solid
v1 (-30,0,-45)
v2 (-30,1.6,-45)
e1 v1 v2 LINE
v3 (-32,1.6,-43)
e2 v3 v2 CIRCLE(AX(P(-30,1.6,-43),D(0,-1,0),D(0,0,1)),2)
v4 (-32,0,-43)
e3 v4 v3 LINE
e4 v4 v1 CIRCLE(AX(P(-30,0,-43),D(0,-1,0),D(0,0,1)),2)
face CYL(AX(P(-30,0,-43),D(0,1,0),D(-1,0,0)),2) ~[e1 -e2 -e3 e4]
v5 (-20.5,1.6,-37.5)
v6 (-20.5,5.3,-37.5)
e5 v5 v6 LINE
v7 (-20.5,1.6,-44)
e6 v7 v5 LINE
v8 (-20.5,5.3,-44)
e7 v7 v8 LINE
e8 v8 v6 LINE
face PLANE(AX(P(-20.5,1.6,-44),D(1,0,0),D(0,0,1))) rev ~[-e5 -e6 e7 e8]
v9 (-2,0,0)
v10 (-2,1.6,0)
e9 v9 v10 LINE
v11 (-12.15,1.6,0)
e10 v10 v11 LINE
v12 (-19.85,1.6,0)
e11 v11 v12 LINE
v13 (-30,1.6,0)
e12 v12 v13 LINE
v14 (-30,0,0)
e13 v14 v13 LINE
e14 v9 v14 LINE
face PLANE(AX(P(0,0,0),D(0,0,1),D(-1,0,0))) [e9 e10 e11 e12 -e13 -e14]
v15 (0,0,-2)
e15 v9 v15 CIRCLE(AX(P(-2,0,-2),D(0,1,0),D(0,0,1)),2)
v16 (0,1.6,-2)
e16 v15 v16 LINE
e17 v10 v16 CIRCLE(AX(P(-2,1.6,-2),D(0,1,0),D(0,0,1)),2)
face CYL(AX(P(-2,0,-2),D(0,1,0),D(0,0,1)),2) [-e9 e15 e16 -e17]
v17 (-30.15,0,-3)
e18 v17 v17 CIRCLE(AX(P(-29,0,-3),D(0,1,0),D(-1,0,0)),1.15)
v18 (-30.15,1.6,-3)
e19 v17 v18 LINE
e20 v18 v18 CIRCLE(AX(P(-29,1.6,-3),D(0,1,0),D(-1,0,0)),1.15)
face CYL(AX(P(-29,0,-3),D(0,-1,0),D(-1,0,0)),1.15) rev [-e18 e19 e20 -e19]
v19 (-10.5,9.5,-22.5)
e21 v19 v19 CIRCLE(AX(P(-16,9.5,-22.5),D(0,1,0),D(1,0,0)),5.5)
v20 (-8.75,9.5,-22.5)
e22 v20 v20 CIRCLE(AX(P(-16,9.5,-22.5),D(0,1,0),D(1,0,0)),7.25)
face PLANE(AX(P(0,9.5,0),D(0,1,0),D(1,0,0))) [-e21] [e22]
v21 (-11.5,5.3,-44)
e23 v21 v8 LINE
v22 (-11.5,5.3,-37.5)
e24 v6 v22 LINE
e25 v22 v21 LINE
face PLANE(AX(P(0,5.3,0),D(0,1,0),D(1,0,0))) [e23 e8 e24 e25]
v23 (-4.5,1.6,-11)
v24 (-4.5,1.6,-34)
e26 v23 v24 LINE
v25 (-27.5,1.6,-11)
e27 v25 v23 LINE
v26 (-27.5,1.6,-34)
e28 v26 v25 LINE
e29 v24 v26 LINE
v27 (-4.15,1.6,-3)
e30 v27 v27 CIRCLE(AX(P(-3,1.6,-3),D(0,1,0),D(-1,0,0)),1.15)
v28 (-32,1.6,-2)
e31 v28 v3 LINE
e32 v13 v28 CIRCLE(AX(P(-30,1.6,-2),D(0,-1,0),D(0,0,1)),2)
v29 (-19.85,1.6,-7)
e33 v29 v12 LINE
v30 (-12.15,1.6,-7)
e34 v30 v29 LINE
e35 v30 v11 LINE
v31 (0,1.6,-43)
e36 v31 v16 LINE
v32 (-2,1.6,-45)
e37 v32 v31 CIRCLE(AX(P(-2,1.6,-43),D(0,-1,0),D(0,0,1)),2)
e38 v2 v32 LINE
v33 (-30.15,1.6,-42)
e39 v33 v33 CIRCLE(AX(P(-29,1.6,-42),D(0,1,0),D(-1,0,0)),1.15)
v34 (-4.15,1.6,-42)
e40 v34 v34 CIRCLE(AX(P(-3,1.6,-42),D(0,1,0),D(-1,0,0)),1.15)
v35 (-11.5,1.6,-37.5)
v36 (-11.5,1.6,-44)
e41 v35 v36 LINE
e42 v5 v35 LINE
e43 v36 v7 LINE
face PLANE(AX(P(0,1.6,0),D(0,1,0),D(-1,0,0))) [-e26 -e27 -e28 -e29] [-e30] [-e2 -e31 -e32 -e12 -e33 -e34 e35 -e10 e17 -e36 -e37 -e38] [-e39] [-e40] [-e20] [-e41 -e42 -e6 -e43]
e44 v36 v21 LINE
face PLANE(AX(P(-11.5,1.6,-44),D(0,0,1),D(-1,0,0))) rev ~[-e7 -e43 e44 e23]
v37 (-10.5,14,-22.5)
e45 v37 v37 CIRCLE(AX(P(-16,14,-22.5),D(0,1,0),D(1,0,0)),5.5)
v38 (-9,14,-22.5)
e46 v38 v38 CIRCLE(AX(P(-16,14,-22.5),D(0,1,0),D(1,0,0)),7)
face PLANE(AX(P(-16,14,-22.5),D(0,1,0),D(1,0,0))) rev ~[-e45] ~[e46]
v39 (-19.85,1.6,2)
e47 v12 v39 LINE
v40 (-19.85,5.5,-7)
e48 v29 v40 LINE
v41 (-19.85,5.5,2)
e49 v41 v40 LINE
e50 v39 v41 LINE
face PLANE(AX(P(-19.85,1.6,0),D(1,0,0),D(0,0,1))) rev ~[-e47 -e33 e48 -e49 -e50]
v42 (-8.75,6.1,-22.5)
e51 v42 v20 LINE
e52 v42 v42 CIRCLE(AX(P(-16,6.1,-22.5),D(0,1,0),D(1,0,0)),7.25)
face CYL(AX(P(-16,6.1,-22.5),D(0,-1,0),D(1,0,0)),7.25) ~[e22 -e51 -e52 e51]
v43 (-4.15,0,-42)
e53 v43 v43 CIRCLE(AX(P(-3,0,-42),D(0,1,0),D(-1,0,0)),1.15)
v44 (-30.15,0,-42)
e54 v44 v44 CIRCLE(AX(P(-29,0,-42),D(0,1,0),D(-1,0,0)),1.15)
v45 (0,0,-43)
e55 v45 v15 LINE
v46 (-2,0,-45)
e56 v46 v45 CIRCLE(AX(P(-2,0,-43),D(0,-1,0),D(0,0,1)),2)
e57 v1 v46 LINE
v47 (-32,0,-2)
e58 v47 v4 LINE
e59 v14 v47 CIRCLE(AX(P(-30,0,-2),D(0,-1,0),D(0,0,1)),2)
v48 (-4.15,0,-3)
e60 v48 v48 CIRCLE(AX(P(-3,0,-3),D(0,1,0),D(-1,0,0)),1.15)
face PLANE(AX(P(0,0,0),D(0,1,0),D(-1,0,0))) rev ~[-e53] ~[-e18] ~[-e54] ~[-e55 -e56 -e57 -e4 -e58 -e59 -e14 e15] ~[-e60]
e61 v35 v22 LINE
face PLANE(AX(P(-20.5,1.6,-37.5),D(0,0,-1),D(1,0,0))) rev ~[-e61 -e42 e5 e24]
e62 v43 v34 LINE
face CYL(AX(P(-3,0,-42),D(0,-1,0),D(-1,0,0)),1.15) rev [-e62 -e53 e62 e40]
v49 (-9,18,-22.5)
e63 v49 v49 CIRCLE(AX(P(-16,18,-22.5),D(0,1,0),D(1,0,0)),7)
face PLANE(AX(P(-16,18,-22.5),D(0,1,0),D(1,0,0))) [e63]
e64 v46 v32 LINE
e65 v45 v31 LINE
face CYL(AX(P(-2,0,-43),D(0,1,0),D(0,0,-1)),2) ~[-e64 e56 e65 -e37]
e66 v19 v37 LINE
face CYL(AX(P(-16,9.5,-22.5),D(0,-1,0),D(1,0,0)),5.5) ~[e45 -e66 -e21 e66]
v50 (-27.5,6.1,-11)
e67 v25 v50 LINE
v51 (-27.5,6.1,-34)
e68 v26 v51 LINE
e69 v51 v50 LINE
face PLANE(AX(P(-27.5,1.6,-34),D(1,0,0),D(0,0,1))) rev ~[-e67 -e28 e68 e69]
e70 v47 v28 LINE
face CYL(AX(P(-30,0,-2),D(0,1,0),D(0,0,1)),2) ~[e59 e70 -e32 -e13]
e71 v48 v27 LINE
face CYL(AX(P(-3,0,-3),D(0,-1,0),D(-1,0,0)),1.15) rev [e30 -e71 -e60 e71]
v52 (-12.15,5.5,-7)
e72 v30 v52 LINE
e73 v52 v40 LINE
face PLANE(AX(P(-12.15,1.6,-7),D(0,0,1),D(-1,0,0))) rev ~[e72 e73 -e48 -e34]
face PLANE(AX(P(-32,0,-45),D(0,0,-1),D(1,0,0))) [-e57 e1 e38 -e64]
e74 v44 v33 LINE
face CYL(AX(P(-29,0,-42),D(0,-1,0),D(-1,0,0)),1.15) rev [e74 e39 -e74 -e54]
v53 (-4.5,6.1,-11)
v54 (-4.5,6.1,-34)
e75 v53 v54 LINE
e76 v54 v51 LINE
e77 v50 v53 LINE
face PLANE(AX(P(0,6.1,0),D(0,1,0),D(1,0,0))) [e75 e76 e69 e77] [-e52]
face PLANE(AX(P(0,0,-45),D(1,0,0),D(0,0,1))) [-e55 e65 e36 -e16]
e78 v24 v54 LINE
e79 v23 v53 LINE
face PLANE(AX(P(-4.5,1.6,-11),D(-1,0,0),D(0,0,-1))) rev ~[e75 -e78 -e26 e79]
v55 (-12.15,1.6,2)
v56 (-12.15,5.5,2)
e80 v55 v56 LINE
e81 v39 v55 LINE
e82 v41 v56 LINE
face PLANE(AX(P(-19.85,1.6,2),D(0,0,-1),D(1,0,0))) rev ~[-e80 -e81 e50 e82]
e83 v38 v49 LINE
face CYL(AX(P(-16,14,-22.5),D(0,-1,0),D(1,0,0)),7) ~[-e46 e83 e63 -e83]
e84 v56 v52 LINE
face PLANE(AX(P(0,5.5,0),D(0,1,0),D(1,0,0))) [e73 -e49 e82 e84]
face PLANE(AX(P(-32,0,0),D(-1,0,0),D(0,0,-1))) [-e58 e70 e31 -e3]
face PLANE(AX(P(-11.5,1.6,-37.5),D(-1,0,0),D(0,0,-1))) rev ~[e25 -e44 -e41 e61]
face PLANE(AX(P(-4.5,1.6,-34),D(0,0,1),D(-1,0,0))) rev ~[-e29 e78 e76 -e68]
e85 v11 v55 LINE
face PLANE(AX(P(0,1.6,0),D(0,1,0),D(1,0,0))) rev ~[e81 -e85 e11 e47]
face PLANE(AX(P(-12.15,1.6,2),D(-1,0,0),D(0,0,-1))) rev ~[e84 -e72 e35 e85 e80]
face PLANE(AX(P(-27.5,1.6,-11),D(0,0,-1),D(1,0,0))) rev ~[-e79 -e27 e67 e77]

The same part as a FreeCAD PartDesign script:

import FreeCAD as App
import Part
import Sketcher
from FreeCAD import Vector
Q = App.Units.Quantity


def edges_at(feature, points):
    """Names of the edges that pass closest to the given points."""
    edges = feature.Shape.Edges
    near = lambda p: min(range(len(edges)), key=lambda i: edges[i].distToShape(Part.Vertex(*p))[0])
    return sorted({f"Edge{near(p) + 1}" for p in points})


def add_polygon(sketch, points):
    """Adds a closed chain of lines whose ends are joined by coincident constraints."""
    first, n = sketch.GeometryCount, len(points)
    for a, b in zip(points, points[1:] + points[:1]):
        sketch.addGeometry(Part.LineSegment(App.Vector(*a, 0), App.Vector(*b, 0)), False)
    for i in range(n):
        sketch.addConstraint(Sketcher.Constraint("Coincident", first + i, 2, first + (i + 1) % n, 1))

doc = App.newDocument("Part")
params = doc.addObject("Spreadsheet::Sheet", "Params")
for row, (alias, value) in enumerate([
    ("sketch1_diameter", "2.3 mm"),
    ("sketch1_width", "32 mm"),
    ("sketch1_height", "45 mm"),
    ("pad1_length", "1.6 mm"),
    ("fillet_radius", "2 mm"),
    ("sketch2_height", "9 mm"),
    ("sketch2_width", "7.7 mm"),
    ("pad2_length", "3.9 mm"),
    ("sketch3_width", "9 mm"),
    ("sketch3_height", "6.5 mm"),
    ("pad3_length", "3.7 mm"),
    ("sketch4_width", "23 mm"),
    ("pad4_length", "4.5 mm"),
    ("sketch5_diameter", "14.5 mm"),
    ("pad5_length", "3.4 mm"),
    ("sketch6_diameter", "11 mm"),
    ("pad6_length", "4.5 mm"),
    ("sketch7_diameter", "14 mm"),
    ("pad7_length", "4 mm"),
], start=1):
    params.set(f"A{row}", alias)
    params.set(f"B{row}", "=" + value)
    params.setAlias(f"B{row}", alias)

body = doc.addObject("PartDesign::Body", "Body")

sketch1 = body.newObject("Sketcher::SketchObject", "Sketch")
sketch1.AttachmentSupport = (doc.getObject("XZ_Plane"), [""])
sketch1.MapMode = "FlatFace"
add_polygon(sketch1, [(-32, 0), (0, 0), (0, -45), (-32, -45)])
sketch1.addGeometry(Part.Circle(Vector(-3, -42, 0), Vector(0, 0, 1), 1.1), False)
sketch1.addGeometry(Part.Circle(Vector(-29, -42, 0), Vector(0, 0, 1), 1.1), False)
sketch1.addGeometry(Part.Circle(Vector(-3, -3, 0), Vector(0, 0, 1), 1.1), False)
sketch1.addGeometry(Part.Circle(Vector(-29, -3, 0), Vector(0, 0, 1), 1.1), False)
sketch1.addConstraint(Sketcher.Constraint("Horizontal", 0))
sketch1.addConstraint(Sketcher.Constraint("Vertical", 1))
sketch1.addConstraint(Sketcher.Constraint("Horizontal", 2))
sketch1.addConstraint(Sketcher.Constraint("Vertical", 3))
sketch1.addConstraint(Sketcher.Constraint("Coincident", 0, 2, -1, 1))
sketch1.addConstraint(Sketcher.Constraint("Equal", 4, 5))
sketch1.addConstraint(Sketcher.Constraint("Equal", 5, 6))
sketch1.addConstraint(Sketcher.Constraint("Equal", 6, 7))
sketch1.addConstraint(Sketcher.Constraint("Horizontal", 4, 3, 5, 3))
sketch1.addConstraint(Sketcher.Constraint("Horizontal", 6, 3, 7, 3))
sketch1.addConstraint(Sketcher.Constraint("Vertical", 4, 3, 6, 3))
sketch1.addConstraint(Sketcher.Constraint("Vertical", 5, 3, 7, 3))
sketch1.addConstraint(Sketcher.Constraint("Diameter", 4, Q("2.3 mm")))
sketch1.addConstraint(Sketcher.Constraint("DistanceX", 0, 1, 0, 2, Q("32 mm")))
sketch1.addConstraint(Sketcher.Constraint("DistanceY", 1, 2, 1, 1, Q("45 mm")))
sketch1.addConstraint(Sketcher.Constraint("DistanceX", 4, 3, -1, 1, Q("3 mm")))
sketch1.addConstraint(Sketcher.Constraint("DistanceY", 6, 3, -1, 1, Q("3 mm")))
sketch1.addConstraint(Sketcher.Constraint("DistanceX", 5, 3, 4, 3, Q("26 mm")))
sketch1.addConstraint(Sketcher.Constraint("DistanceY", 4, 3, 6, 3, Q("39 mm")))
sketch1.setExpression("Constraints[16]", "Params.sketch1_diameter")
sketch1.setExpression("Constraints[17]", "Params.sketch1_width")
sketch1.setExpression("Constraints[18]", "Params.sketch1_height")
pad1 = body.newObject("PartDesign::Pad", "Pad")
pad1.Profile = sketch1
pad1.setExpression("Length", "Params.pad1_length")
pad1.Reversed = True
doc.recompute()

fillet = body.newObject("PartDesign::Fillet", "Fillet")
fillet.Base = (pad1, edges_at(pad1, [
    (-32, 0.8, -45),
    (0, 0.8, -45),
    (-32, 0.8, 0),
    (0, 0.8, 0),
]))
fillet.setExpression("Radius", "Params.fillet_radius")

sketch2 = body.newObject("Sketcher::SketchObject", "Sketch001")
sketch2.AttachmentSupport = (doc.getObject("XZ_Plane"), [""])
sketch2.MapMode = "FlatFace"
sketch2.AttachmentOffset = App.Placement(Vector(0, 0, -1.6), App.Rotation())
add_polygon(sketch2, [(-20, 2), (-12, 2), (-12, -7), (-20, -7)])
sketch2.addConstraint(Sketcher.Constraint("Horizontal", 0))
sketch2.addConstraint(Sketcher.Constraint("Vertical", 1))
sketch2.addConstraint(Sketcher.Constraint("Horizontal", 2))
sketch2.addConstraint(Sketcher.Constraint("Vertical", 3))
sketch2.addConstraint(Sketcher.Constraint("DistanceY", 1, 2, 1, 1, Q("9 mm")))
sketch2.addConstraint(Sketcher.Constraint("DistanceX", 0, 1, 0, 2, Q("7.7 mm")))
sketch2.addConstraint(Sketcher.Constraint("DistanceY", -1, 1, 0, 2, Q("2 mm")))
sketch2.addConstraint(Sketcher.Constraint("DistanceX", 0, 2, -1, 1, Q("12.15 mm")))
sketch2.setExpression("Constraints[8]", "Params.sketch2_height")
sketch2.setExpression("Constraints[9]", "Params.sketch2_width")
pad2 = body.newObject("PartDesign::Pad", "Pad001")
pad2.Profile = sketch2
pad2.setExpression("Length", "Params.pad2_length")
pad2.Reversed = True

sketch3 = body.newObject("Sketcher::SketchObject", "Sketch002")
sketch3.AttachmentSupport = (doc.getObject("XZ_Plane"), [""])
sketch3.MapMode = "FlatFace"
sketch3.AttachmentOffset = App.Placement(Vector(0, 0, -1.6), App.Rotation())
add_polygon(sketch3, [(-20, -44), (-20, -38), (-12, -38), (-12, -44)])
sketch3.addConstraint(Sketcher.Constraint("Vertical", 0))
sketch3.addConstraint(Sketcher.Constraint("Horizontal", 1))
sketch3.addConstraint(Sketcher.Constraint("Vertical", 2))
sketch3.addConstraint(Sketcher.Constraint("Horizontal", 3))
sketch3.addConstraint(Sketcher.Constraint("DistanceX", 1, 1, 1, 2, Q("9 mm")))
sketch3.addConstraint(Sketcher.Constraint("DistanceY", 0, 1, 0, 2, Q("6.5 mm")))
sketch3.addConstraint(Sketcher.Constraint("DistanceX", 1, 2, -1, 1, Q("11.5 mm")))
sketch3.addConstraint(Sketcher.Constraint("DistanceY", 2, 2, -1, 1, Q("44 mm")))
sketch3.setExpression("Constraints[8]", "Params.sketch3_width")
sketch3.setExpression("Constraints[9]", "Params.sketch3_height")
pad3 = body.newObject("PartDesign::Pad", "Pad002")
pad3.Profile = sketch3
pad3.setExpression("Length", "Params.pad3_length")
pad3.Reversed = True

sketch4 = body.newObject("Sketcher::SketchObject", "Sketch003")
sketch4.AttachmentSupport = (doc.getObject("XZ_Plane"), [""])
sketch4.MapMode = "FlatFace"
sketch4.AttachmentOffset = App.Placement(Vector(0, 0, -1.6), App.Rotation())
add_polygon(sketch4, [(-28, -34), (-28, -11), (-4, -11), (-4, -34)])
sketch4.addConstraint(Sketcher.Constraint("Vertical", 0))
sketch4.addConstraint(Sketcher.Constraint("Horizontal", 1))
sketch4.addConstraint(Sketcher.Constraint("Vertical", 2))
sketch4.addConstraint(Sketcher.Constraint("Horizontal", 3))
sketch4.addConstraint(Sketcher.Constraint("Equal", 3, 0))
sketch4.addConstraint(Sketcher.Constraint("DistanceX", 1, 1, 1, 2, Q("23 mm")))
sketch4.addConstraint(Sketcher.Constraint("DistanceX", 1, 2, -1, 1, Q("4.5 mm")))
sketch4.addConstraint(Sketcher.Constraint("DistanceY", 0, 2, -1, 1, Q("11 mm")))
sketch4.setExpression("Constraints[9]", "Params.sketch4_width")
pad4 = body.newObject("PartDesign::Pad", "Pad003")
pad4.Profile = sketch4
pad4.setExpression("Length", "Params.pad4_length")
pad4.Reversed = True

sketch5 = body.newObject("Sketcher::SketchObject", "Sketch004")
sketch5.AttachmentSupport = (doc.getObject("XZ_Plane"), [""])
sketch5.MapMode = "FlatFace"
sketch5.AttachmentOffset = App.Placement(Vector(0, 0, -6.1), App.Rotation())
sketch5.addGeometry(Part.Circle(Vector(-16, -22, 0), Vector(0, 0, 1), 7), False)
sketch5.addConstraint(Sketcher.Constraint("Diameter", 0, Q("14.5 mm")))
sketch5.addConstraint(Sketcher.Constraint("DistanceX", 0, 3, -1, 1, Q("16 mm")))
sketch5.addConstraint(Sketcher.Constraint("DistanceY", 0, 3, -1, 1, Q("22.5 mm")))
sketch5.setExpression("Constraints[0]", "Params.sketch5_diameter")
pad5 = body.newObject("PartDesign::Pad", "Pad004")
pad5.Profile = sketch5
pad5.setExpression("Length", "Params.pad5_length")
pad5.Reversed = True

sketch6 = body.newObject("Sketcher::SketchObject", "Sketch005")
sketch6.AttachmentSupport = (doc.getObject("XZ_Plane"), [""])
sketch6.MapMode = "FlatFace"
sketch6.AttachmentOffset = App.Placement(Vector(0, 0, -9.5), App.Rotation())
sketch6.addGeometry(Part.Circle(Vector(-16, -22, 0), Vector(0, 0, 1), 6), False)
sketch6.addConstraint(Sketcher.Constraint("Diameter", 0, Q("11 mm")))
sketch6.addConstraint(Sketcher.Constraint("DistanceX", 0, 3, -1, 1, Q("16 mm")))
sketch6.addConstraint(Sketcher.Constraint("DistanceY", 0, 3, -1, 1, Q("22.5 mm")))
sketch6.setExpression("Constraints[0]", "Params.sketch6_diameter")
pad6 = body.newObject("PartDesign::Pad", "Pad005")
pad6.Profile = sketch6
pad6.setExpression("Length", "Params.pad6_length")
pad6.Reversed = True

sketch7 = body.newObject("Sketcher::SketchObject", "Sketch006")
sketch7.AttachmentSupport = (doc.getObject("XZ_Plane"), [""])
sketch7.MapMode = "FlatFace"
sketch7.AttachmentOffset = App.Placement(Vector(0, 0, -14), App.Rotation())
sketch7.addGeometry(Part.Circle(Vector(-16, -22, 0), Vector(0, 0, 1), 7), False)
sketch7.addConstraint(Sketcher.Constraint("Diameter", 0, Q("14 mm")))
sketch7.addConstraint(Sketcher.Constraint("DistanceX", 0, 3, -1, 1, Q("16 mm")))
sketch7.addConstraint(Sketcher.Constraint("DistanceY", 0, 3, -1, 1, Q("22.5 mm")))
sketch7.setExpression("Constraints[0]", "Params.sketch7_diameter")
pad7 = body.newObject("PartDesign::Pad", "Pad006")
pad7.Profile = sketch7
pad7.setExpression("Length", "Params.pad7_length")
pad7.Reversed = True

doc.recompute()
